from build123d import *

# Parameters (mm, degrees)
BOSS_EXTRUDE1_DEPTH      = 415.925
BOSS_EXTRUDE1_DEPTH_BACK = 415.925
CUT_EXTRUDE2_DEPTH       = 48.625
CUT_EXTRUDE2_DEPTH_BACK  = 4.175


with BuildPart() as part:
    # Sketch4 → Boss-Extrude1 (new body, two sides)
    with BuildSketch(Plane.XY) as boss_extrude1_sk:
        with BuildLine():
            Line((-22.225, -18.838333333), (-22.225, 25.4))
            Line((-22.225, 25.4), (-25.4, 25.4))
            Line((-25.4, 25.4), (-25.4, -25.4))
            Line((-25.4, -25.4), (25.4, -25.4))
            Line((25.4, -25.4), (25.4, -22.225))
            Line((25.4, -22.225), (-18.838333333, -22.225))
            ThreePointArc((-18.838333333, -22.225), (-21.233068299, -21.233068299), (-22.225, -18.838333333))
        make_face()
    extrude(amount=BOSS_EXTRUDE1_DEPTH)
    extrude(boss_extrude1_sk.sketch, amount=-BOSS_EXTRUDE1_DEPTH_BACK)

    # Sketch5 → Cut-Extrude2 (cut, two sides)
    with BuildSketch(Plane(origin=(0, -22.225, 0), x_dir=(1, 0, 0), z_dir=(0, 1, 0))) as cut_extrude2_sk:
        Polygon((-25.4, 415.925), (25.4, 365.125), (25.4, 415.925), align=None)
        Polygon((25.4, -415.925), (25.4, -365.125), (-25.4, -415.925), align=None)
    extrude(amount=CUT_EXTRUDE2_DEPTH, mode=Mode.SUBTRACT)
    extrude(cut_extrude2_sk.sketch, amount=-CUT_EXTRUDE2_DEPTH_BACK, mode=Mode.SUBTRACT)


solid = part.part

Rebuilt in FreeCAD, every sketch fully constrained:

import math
import FreeCAD as App
import Part
import Sketcher
from FreeCAD import Vector
Q = App.Units.Quantity


def add_polygon(sketch, points):
    """Adds a closed chain of lines whose ends are joined by coincident constraints."""
    first, n = sketch.GeometryCount, len(points)
    for a, b in zip(points, points[1:] + points[:1]):
        sketch.addGeometry(Part.LineSegment(App.Vector(*a, 0), App.Vector(*b, 0)), False)
    for i in range(n):
        sketch.addConstraint(Sketcher.Constraint("Coincident", first + i, 2, first + (i + 1) % n, 1))

doc = App.newDocument("Part")
params = doc.addObject("Spreadsheet::Sheet", "Params")
for row, (alias, value) in enumerate([
    ("sketch1_width", "2 in"),
    ("sketch1_width2", "0.125 in"),
    ("pad1_length", "16.375 in"),
    ("pad1_length2", "16.375 in"),
    ("sketch2_width", "2 in"),
], start=1):
    params.set(f"A{row}", alias)
    params.set(f"B{row}", "=" + value)
    params.setAlias(f"B{row}", alias)

body = doc.addObject("PartDesign::Body", "Body")

# Sketch on XY plane
sketch1 = body.newObject("Sketcher::SketchObject", "Sketch")
sketch1.AttachmentSupport = (doc.getObject("XY_Plane"), [""])
sketch1.MapMode = "FlatFace"
sketch1.addGeometry([
    Part.LineSegment(Vector(-22.2, -18.8, 0), Vector(-22.2, 25.4, 0)),  # 0
    Part.LineSegment(Vector(-22.2, 25.4, 0), Vector(-25.4, 25.4, 0)),  # 1
    Part.LineSegment(Vector(-25.4, 25.4, 0), Vector(-25.4, -25.4, 0)),  # 2
    Part.LineSegment(Vector(-25.4, -25.4, 0), Vector(25.4, -25.4, 0)),  # 3
    Part.LineSegment(Vector(25.4, -25.4, 0), Vector(25.4, -22.2, 0)),  # 4
    Part.LineSegment(Vector(25.4, -22.2, 0), Vector(-18.8, -22.2, 0)),  # 5
    Part.ArcOfCircle(Part.Circle(Vector(-18.8, -18.8, 0), Vector(0, 0, 1), 3.4), math.radians(180), math.radians(270)),  # 6
], False)
sketch1.addConstraint([
    Sketcher.Constraint("Coincident", 0, 2, 1, 1),
    Sketcher.Constraint("Coincident", 1, 2, 2, 1),
    Sketcher.Constraint("Coincident", 2, 2, 3, 1),
    Sketcher.Constraint("Coincident", 3, 2, 4, 1),
    Sketcher.Constraint("Coincident", 4, 2, 5, 1),
    Sketcher.Constraint("Tangent", 5, 2, 6, 2),
    Sketcher.Constraint("Tangent", 6, 1, 0, 1),
    Sketcher.Constraint("Vertical", 0),
    Sketcher.Constraint("Horizontal", 1),
    Sketcher.Constraint("Vertical", 2),
    Sketcher.Constraint("Horizontal", 3),
    Sketcher.Constraint("Vertical", 4),
    Sketcher.Constraint("Horizontal", 5),
    Sketcher.Constraint("Symmetric", 1, 2, 3, 2, -1, 1),
    Sketcher.Constraint("Equal", 5, 0),
    Sketcher.Constraint("Equal", 3, 2),
    Sketcher.Constraint("DistanceX", 3, 1, 3, 2, Q("2 in")),
    Sketcher.Constraint("DistanceX", 1, 2, 1, 1, Q("0.125 in")),
    Sketcher.Constraint("Radius", 6, Q("3.386667 mm")),
])
sketch1.setExpression("Constraints[16]", "Params.sketch1_width")
sketch1.setExpression("Constraints[17]", "Params.sketch1_width2")
pad1 = body.newObject("PartDesign::Pad", "Pad")
pad1.Profile = sketch1
pad1.Type = "TwoLengths"
pad1.setExpression("Length", "Params.pad1_length")
pad1.setExpression("Length2", "Params.pad1_length2")

# Sketch on XZ plane
sketch2 = body.newObject("Sketcher::SketchObject", "Sketch001")
sketch2.AttachmentSupport = (doc.getObject("XZ_Plane"), [""])
sketch2.MapMode = "FlatFace"
sketch2.AttachmentOffset = App.Placement(Vector(0, 0, 0.875 * 25.4), App.Rotation())
add_polygon(sketch2, [(-25, -416), (25, -365), (25, -416)])  # lines 0-2
add_polygon(sketch2, [(25, 416), (25, 365), (-25, 416)])  # lines 3-5
sketch2.addConstraint([
    Sketcher.Constraint("Vertical", 1),
    Sketcher.Constraint("Horizontal", 2),
    Sketcher.Constraint("Vertical", 3),
    Sketcher.Constraint("Horizontal", 5),
    Sketcher.Constraint("Symmetric", 1, 2, 4, 2, -1, 1),
    Sketcher.Constraint("Symmetric", 0, 2, 3, 2, -1),
    Sketcher.Constraint("Perpendicular", 0, 4),
    Sketcher.Constraint("Vertical", 2, 2, 4, 2),
    Sketcher.Constraint("DistanceX", 2, 2, 2, 1, Q("2 in")),
    Sketcher.Constraint("DistanceY", 0, 2, 3, 2, Q("28.75 in")),
])
sketch2.setExpression("Constraints[14]", "Params.sketch2_width")
pocket1 = body.newObject("PartDesign::Pocket", "Pocket")
pocket1.Profile = sketch2
pocket1.Type = "ThroughAll"
pocket1.Midplane = True

doc.recompute()
